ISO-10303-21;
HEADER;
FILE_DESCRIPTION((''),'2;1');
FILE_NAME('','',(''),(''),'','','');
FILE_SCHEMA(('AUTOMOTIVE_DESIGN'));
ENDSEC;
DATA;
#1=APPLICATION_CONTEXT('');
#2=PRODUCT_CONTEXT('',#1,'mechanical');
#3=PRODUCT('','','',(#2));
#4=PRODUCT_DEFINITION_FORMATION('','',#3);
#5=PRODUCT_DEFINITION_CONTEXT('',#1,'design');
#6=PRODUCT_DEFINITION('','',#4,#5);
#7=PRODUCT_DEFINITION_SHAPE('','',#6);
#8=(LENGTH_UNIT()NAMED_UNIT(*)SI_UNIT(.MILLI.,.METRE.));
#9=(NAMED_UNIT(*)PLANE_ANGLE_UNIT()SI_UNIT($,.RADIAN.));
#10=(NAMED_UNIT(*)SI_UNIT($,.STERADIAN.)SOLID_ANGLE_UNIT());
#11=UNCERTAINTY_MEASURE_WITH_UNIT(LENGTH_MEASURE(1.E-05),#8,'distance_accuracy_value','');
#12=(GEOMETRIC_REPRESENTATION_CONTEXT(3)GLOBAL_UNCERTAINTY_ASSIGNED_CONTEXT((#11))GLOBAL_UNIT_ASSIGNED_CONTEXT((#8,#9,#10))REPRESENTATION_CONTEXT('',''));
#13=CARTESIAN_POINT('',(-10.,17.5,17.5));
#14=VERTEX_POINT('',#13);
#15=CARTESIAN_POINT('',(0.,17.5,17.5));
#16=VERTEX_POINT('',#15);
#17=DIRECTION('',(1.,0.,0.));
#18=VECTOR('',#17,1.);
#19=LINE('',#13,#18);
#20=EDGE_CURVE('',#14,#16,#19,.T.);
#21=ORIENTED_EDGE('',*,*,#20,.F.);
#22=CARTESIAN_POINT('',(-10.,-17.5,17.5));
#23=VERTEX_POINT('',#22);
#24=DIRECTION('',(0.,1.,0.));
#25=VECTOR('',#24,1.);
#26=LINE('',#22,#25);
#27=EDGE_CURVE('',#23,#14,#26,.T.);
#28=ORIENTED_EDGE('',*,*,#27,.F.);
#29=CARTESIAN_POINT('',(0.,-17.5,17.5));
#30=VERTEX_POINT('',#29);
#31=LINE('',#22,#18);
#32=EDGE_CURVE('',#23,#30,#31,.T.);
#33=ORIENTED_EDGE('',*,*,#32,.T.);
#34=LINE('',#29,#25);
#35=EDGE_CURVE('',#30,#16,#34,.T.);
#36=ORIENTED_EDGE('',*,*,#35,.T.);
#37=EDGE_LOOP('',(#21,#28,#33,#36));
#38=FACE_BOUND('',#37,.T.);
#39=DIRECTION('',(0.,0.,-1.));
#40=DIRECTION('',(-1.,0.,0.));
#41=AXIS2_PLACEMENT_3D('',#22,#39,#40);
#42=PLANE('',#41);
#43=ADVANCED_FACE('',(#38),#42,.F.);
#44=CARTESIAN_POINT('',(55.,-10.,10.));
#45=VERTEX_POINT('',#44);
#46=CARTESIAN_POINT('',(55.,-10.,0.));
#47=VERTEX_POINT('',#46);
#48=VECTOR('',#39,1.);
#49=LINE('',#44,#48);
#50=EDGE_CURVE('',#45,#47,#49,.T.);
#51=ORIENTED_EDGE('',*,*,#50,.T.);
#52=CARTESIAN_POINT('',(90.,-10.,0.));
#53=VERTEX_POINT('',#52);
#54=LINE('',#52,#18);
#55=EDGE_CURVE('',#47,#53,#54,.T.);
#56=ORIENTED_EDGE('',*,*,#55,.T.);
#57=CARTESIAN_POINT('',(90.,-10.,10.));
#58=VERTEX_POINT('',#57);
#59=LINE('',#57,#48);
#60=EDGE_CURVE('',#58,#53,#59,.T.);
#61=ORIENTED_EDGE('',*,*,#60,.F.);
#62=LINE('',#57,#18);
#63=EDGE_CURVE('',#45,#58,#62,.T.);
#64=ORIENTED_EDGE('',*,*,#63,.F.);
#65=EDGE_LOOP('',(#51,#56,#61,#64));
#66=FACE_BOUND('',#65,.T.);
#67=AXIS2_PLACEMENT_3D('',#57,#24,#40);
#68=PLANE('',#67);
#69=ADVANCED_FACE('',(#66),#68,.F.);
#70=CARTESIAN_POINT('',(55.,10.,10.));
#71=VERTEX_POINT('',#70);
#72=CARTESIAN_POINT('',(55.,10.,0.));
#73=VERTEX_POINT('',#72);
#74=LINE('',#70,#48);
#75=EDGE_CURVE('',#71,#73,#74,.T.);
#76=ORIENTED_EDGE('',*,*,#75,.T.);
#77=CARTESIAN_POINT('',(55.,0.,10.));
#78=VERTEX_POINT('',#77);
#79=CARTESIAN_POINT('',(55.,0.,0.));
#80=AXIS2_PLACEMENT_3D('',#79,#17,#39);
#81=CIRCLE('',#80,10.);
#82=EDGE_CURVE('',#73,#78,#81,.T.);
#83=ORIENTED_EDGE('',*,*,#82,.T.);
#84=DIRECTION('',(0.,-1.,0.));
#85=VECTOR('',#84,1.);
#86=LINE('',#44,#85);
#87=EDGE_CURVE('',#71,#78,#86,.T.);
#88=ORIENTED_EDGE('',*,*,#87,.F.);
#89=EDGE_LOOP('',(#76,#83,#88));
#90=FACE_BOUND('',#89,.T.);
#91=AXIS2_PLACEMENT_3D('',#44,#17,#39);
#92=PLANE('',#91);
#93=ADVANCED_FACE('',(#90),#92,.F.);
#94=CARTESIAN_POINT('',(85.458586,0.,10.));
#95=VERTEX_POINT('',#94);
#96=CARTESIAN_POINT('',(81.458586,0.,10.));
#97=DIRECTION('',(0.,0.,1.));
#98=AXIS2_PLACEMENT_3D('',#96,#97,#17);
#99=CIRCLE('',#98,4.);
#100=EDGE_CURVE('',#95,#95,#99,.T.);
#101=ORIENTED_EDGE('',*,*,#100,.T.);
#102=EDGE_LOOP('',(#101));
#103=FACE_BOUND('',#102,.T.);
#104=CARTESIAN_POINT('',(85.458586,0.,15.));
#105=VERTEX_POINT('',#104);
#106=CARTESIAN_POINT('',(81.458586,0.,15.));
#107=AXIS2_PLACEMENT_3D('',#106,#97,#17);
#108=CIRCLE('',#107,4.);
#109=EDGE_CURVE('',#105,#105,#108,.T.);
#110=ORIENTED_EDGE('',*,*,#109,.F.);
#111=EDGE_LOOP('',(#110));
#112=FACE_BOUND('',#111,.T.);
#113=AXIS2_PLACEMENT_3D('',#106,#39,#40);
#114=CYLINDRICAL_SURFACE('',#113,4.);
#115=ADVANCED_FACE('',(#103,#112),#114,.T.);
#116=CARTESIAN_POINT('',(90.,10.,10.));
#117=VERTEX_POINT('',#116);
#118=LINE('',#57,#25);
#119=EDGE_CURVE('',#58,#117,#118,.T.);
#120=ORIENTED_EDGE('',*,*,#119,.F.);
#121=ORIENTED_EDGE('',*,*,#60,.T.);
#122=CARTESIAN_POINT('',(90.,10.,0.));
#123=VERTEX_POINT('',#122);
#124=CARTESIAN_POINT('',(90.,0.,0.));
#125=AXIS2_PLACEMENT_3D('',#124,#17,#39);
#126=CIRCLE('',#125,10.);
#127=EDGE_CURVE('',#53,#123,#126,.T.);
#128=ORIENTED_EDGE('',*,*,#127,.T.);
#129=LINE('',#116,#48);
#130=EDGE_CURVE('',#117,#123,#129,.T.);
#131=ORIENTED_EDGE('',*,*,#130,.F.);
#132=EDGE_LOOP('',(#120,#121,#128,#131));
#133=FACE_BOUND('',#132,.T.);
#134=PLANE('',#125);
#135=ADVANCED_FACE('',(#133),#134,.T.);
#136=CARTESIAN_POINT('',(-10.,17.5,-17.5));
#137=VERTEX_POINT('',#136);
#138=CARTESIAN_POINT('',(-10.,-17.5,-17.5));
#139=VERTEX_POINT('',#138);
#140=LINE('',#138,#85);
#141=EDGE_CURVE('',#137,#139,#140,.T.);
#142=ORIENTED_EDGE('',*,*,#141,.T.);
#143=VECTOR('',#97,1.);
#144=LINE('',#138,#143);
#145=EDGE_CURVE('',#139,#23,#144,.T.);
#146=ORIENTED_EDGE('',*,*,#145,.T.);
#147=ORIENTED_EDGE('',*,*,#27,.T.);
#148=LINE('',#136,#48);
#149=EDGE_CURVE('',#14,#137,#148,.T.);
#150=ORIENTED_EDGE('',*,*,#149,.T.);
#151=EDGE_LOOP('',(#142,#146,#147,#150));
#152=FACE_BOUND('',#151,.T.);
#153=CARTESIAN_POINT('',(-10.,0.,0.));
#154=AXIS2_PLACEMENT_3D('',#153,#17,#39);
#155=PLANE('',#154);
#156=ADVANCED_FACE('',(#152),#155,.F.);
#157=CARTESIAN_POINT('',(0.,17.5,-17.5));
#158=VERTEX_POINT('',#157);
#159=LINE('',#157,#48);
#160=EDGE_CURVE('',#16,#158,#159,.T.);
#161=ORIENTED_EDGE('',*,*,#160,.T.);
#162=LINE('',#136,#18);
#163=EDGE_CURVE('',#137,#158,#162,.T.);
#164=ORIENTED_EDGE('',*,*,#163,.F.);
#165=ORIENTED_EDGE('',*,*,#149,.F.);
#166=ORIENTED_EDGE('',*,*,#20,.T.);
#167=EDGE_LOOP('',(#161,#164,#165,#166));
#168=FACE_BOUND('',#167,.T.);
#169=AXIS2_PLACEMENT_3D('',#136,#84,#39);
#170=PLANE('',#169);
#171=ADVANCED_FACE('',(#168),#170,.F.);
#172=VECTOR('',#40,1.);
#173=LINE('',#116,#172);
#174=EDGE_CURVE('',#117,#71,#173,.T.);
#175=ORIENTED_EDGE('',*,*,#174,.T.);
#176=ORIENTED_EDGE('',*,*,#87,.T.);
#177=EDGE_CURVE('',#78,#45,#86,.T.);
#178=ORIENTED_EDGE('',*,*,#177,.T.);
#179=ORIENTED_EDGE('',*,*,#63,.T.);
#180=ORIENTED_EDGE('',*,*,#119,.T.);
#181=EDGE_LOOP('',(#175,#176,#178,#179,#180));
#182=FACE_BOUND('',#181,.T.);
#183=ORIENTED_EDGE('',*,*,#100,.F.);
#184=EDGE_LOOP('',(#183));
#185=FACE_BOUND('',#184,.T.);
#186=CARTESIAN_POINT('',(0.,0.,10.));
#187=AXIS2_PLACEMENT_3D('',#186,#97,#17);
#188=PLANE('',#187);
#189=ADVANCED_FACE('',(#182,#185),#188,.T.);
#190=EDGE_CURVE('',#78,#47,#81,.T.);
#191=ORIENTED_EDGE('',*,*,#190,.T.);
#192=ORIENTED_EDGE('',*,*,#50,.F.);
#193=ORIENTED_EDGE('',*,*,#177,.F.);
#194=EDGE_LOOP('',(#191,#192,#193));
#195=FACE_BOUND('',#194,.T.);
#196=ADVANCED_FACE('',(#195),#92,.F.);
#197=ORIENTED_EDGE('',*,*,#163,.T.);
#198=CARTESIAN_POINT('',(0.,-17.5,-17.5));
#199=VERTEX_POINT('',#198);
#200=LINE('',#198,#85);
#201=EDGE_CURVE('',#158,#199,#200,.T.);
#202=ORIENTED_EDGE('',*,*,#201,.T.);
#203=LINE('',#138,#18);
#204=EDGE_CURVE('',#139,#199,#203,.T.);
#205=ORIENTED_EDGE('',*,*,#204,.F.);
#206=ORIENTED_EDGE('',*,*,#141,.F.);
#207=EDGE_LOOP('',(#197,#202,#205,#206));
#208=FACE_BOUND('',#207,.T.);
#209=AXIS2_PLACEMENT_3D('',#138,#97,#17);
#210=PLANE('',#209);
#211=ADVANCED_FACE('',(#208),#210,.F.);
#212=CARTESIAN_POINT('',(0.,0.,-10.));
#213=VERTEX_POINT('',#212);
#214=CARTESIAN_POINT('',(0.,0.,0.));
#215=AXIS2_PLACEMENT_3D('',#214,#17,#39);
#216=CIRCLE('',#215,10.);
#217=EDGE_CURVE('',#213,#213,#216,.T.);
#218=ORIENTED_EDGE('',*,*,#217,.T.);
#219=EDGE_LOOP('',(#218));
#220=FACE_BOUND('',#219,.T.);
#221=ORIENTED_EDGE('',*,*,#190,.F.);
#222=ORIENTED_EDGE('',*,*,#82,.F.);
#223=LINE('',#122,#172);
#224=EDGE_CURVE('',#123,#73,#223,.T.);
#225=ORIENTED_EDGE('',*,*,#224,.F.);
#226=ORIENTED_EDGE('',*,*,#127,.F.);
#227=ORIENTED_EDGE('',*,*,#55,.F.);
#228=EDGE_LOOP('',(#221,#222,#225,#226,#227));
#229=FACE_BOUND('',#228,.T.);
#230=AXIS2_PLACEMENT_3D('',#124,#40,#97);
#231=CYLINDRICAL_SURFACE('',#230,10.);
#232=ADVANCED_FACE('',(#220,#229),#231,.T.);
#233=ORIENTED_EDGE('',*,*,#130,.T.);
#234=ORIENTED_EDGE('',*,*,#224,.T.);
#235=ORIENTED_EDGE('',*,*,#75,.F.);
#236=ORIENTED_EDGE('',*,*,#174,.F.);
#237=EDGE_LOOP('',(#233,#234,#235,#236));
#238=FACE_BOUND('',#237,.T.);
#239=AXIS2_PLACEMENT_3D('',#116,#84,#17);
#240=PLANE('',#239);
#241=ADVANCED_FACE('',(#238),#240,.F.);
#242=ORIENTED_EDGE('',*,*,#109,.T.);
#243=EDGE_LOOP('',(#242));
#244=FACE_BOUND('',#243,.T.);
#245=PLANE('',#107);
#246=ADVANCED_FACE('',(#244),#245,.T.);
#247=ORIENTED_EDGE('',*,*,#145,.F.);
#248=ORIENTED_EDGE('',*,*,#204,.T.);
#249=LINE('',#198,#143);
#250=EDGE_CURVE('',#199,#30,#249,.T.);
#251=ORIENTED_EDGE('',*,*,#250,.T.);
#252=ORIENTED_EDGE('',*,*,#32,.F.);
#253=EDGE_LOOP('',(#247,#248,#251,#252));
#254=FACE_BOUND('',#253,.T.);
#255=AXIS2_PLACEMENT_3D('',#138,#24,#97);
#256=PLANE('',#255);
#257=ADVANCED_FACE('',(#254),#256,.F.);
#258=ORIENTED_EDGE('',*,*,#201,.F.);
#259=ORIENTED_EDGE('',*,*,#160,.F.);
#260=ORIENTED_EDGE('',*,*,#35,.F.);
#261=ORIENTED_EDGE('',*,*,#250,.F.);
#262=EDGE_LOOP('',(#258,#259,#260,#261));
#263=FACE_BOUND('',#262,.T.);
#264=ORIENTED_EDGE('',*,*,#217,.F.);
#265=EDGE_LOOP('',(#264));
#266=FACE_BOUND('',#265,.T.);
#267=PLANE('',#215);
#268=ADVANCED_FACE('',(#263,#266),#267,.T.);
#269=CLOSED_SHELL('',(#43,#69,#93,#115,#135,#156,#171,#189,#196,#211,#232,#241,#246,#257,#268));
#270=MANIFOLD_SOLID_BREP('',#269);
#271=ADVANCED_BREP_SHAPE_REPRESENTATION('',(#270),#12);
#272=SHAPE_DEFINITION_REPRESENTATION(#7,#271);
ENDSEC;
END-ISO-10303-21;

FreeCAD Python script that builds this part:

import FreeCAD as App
import Part
import Sketcher

V = App.Vector
Q = App.Units.Quantity


def add_polygon(sketch, points):
    """Adds a closed chain of lines whose ends are joined by coincident constraints."""
    first, n = sketch.GeometryCount, len(points)
    for a, b in zip(points, points[1:] + points[:1]):
        sketch.addGeometry(Part.LineSegment(App.Vector(*a, 0), App.Vector(*b, 0)), False)
    for i in range(n):
        sketch.addConstraint(Sketcher.Constraint("Coincident", first + i, 2, first + (i + 1) % n, 1))

doc = App.newDocument("Part")
body = doc.addObject("PartDesign::Body", "Body")

sketch1 = body.newObject("Sketcher::SketchObject", "Sketch")
sketch1.AttachmentSupport = (doc.getObject("YZ_Plane"), [""])
sketch1.MapMode = "FlatFace"
sketch1.addGeometry(Part.Circle(V(0, 0, 0), V(0, 0, 1), 10), False)
sketch1.addConstraint([
    Sketcher.Constraint("Coincident", 0, 3, -1, 1),
    Sketcher.Constraint("Diameter", 0, Q("20 mm")),
])
pad1 = body.newObject("PartDesign::Pad", "Pad")
pad1.Profile = sketch1
pad1.Length = 90

sketch2 = body.newObject("Sketcher::SketchObject", "Sketch001")
sketch2.AttachmentSupport = (doc.getObject("XY_Plane"), [""])
sketch2.MapMode = "FlatFace"
add_polygon(sketch2, [(55, 10), (55, -10), (90, -10), (90, 10)])
sketch2.addConstraint([
    Sketcher.Constraint("Vertical", 0),
    Sketcher.Constraint("Horizontal", 1),
    Sketcher.Constraint("Vertical", 2),
    Sketcher.Constraint("Horizontal", 3),
    Sketcher.Constraint("DistanceX", 1, 1, 1, 2, Q("35 mm")),
    Sketcher.Constraint("DistanceY", 0, 2, 0, 1, Q("20 mm")),
    Sketcher.Constraint("DistanceX", -1, 1, 0, 2, Q("55 mm")),
    Sketcher.Constraint("DistanceY", 0, 2, -1, 1, Q("10 mm")),
])
pad2 = body.newObject("PartDesign::Pad", "Pad001")
pad2.Profile = sketch2
pad2.Length = 10

sketch3 = body.newObject("Sketcher::SketchObject", "Sketch002")
sketch3.AttachmentSupport = (doc.getObject("XY_Plane"), [""])
sketch3.MapMode = "FlatFace"
sketch3.AttachmentOffset = App.Placement(V(0, 0, 10), App.Rotation())
sketch3.addGeometry(Part.Circle(V(81.458586, 0, 0), V(0, 0, 1), 4), False)
sketch3.addConstraint([
    Sketcher.Constraint("PointOnObject", 0, 3, -1),
    Sketcher.Constraint("Diameter", 0, Q("8 mm")),
    Sketcher.Constraint("DistanceX", -1, 1, 0, 3, Q("81.458586 mm")),
])
pad3 = body.newObject("PartDesign::Pad", "Pad002")
pad3.Profile = sketch3
pad3.Length = 5

sketch4 = body.newObject("Sketcher::SketchObject", "Sketch003")
sketch4.AttachmentSupport = (doc.getObject("YZ_Plane"), [""])
sketch4.MapMode = "FlatFace"
add_polygon(sketch4, [(17.5, -17.5), (-17.5, -17.5), (-17.5, 17.5), (17.5, 17.5)])
sketch4.addConstraint([
    Sketcher.Constraint("Horizontal", 0),
    Sketcher.Constraint("Vertical", 1),
    Sketcher.Constraint("Horizontal", 2),
    Sketcher.Constraint("Vertical", 3),
    Sketcher.Constraint("Symmetric", 0, 2, 2, 2, -1, 1),
    Sketcher.Constraint("Equal", 2, 1),
    Sketcher.Constraint("DistanceX", 0, 2, 0, 1, Q("35 mm")),
])
pad4 = body.newObject("PartDesign::Pad", "Pad003")
pad4.Profile = sketch4
pad4.Length = 10
pad4.Reversed = True

doc.recompute()
